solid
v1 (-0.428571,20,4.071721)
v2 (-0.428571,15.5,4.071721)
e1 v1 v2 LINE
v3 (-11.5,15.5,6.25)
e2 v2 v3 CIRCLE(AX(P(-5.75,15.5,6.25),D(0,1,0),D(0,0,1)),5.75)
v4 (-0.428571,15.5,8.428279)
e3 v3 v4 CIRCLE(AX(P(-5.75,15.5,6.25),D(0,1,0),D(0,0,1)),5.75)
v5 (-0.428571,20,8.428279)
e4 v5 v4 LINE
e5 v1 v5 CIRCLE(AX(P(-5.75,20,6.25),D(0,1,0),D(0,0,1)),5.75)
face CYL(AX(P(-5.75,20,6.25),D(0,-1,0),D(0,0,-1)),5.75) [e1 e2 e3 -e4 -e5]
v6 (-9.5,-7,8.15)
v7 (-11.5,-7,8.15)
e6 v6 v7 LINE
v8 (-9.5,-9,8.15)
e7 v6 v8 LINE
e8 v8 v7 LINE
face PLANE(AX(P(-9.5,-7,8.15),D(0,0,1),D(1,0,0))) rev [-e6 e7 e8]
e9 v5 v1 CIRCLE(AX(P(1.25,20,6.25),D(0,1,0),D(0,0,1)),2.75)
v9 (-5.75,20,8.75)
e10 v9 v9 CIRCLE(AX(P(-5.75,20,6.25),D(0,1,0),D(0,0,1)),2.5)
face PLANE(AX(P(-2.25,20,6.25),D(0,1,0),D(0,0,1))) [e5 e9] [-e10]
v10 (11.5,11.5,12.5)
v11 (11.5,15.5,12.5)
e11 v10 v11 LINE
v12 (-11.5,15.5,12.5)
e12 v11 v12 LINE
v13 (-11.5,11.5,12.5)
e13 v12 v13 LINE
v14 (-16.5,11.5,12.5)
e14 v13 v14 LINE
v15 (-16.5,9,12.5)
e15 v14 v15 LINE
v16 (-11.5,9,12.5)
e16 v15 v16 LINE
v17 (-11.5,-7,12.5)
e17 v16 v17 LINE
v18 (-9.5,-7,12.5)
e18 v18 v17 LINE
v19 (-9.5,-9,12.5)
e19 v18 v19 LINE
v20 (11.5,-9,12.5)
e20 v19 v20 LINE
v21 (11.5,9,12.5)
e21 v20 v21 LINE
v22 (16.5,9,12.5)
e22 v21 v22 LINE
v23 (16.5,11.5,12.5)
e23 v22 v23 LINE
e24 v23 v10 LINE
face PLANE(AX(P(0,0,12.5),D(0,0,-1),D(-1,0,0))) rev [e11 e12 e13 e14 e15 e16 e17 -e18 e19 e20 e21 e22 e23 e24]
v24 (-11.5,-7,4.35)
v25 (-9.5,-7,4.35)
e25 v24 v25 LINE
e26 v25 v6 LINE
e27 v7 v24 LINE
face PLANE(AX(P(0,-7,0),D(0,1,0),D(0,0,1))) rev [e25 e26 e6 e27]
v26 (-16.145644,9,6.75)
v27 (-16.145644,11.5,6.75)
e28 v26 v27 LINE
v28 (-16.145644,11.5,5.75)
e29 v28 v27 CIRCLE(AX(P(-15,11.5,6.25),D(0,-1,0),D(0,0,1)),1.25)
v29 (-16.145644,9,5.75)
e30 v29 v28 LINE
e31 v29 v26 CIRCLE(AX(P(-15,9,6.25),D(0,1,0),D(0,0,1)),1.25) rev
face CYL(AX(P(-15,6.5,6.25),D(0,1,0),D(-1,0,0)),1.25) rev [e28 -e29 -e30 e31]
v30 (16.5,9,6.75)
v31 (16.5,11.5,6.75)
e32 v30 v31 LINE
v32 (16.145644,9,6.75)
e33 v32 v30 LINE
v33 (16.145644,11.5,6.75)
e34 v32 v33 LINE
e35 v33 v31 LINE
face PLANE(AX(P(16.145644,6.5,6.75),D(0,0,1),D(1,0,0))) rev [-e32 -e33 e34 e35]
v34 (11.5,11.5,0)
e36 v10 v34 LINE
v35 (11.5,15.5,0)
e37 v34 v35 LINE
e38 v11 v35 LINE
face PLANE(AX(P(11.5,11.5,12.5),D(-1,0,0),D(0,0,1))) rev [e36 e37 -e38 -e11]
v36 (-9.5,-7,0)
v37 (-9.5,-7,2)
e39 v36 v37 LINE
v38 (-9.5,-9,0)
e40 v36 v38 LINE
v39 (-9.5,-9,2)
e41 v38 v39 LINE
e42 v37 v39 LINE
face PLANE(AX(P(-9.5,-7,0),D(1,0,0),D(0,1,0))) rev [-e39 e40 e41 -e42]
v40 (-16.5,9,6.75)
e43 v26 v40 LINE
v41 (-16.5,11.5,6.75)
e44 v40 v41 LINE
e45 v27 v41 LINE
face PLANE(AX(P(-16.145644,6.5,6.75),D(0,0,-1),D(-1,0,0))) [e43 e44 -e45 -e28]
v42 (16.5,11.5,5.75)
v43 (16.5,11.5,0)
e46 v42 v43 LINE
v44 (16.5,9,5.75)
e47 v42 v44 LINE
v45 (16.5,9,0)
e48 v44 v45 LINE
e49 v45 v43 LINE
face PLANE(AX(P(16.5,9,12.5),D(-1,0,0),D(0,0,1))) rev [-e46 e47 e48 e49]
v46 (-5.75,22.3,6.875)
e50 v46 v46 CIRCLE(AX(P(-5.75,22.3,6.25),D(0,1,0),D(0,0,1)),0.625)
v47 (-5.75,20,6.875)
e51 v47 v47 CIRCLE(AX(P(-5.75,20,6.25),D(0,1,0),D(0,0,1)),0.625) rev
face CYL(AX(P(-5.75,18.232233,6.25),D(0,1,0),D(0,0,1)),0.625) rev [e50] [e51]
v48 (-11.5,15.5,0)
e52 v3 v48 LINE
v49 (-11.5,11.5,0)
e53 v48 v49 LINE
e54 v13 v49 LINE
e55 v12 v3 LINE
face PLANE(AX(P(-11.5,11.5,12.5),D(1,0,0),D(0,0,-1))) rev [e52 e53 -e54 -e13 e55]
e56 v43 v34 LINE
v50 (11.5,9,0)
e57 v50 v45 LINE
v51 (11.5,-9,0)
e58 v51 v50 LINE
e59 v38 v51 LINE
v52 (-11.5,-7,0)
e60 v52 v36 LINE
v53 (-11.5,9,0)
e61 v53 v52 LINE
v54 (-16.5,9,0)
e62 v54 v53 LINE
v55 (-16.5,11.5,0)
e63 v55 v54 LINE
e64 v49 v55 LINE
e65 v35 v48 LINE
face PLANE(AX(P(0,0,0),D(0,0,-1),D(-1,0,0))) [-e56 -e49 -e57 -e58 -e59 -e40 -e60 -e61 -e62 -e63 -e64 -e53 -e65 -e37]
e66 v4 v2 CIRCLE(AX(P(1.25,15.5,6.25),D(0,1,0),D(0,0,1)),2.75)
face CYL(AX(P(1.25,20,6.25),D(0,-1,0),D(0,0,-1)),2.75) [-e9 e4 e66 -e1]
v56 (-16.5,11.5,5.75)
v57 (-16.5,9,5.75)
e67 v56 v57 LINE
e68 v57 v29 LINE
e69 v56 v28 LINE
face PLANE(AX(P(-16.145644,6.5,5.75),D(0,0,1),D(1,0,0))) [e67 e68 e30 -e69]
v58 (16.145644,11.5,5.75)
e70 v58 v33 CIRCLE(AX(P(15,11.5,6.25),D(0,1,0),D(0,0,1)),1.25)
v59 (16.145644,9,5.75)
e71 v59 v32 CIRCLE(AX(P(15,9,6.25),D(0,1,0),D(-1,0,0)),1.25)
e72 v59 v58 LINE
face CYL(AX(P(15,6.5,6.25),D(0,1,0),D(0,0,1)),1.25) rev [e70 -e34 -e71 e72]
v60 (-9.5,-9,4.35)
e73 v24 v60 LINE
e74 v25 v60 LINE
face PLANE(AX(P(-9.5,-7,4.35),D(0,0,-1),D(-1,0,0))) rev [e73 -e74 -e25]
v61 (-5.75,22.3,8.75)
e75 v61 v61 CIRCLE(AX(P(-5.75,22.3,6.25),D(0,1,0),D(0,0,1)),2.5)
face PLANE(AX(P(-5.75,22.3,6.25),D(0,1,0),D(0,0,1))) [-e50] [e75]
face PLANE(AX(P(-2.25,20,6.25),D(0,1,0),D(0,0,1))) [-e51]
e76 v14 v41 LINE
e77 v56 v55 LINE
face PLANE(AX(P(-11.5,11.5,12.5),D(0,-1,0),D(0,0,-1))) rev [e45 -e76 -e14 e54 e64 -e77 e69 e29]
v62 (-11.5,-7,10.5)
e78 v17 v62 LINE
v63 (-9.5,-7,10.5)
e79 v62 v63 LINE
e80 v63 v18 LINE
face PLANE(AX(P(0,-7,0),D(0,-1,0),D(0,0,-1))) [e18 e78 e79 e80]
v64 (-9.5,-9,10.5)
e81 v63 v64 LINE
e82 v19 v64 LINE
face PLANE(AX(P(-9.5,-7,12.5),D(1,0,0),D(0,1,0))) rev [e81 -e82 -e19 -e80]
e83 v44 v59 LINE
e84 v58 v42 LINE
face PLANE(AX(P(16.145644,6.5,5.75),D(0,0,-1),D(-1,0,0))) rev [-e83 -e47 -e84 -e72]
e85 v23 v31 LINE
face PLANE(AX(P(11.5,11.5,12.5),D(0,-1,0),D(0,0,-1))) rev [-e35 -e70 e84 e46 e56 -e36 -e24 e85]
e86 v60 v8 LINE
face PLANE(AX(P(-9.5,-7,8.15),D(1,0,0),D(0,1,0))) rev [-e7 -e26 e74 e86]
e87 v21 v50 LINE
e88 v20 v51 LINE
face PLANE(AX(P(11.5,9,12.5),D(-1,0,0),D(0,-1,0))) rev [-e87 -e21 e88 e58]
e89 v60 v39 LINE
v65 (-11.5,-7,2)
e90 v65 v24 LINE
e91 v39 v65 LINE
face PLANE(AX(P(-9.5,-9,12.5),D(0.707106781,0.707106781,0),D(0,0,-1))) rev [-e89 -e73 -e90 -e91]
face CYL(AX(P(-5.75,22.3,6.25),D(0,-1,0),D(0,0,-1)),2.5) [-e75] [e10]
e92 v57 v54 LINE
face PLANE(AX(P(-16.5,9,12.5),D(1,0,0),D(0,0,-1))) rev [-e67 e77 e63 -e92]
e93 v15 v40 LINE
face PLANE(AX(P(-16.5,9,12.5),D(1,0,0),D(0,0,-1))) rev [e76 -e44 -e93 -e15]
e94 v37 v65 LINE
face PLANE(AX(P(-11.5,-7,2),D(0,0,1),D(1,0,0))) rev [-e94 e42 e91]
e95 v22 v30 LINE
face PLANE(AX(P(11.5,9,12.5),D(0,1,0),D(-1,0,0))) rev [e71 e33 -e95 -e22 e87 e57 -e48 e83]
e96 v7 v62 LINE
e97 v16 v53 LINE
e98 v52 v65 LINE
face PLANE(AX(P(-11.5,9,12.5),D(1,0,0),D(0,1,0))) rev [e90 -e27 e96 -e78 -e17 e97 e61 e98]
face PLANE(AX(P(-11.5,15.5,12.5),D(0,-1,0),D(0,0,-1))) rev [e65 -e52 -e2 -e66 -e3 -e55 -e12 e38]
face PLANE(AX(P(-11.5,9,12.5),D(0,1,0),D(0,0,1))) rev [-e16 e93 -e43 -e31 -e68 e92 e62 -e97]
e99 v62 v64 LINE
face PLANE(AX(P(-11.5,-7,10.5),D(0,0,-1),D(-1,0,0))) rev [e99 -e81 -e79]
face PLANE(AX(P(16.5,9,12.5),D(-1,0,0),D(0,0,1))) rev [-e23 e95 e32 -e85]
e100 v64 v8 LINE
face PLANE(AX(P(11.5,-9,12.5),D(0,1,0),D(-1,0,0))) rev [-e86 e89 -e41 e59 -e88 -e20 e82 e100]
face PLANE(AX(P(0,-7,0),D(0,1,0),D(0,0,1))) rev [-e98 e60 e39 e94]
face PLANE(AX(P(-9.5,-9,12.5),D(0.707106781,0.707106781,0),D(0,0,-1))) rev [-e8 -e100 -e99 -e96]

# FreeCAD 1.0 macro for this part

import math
import FreeCAD as App
import Part
import Sketcher


def edges_at(feature, points):
    """Names of the edges that pass closest to the given points."""
    edges = feature.Shape.Edges
    near = lambda p: min(range(len(edges)), key=lambda i: edges[i].distToShape(Part.Vertex(*p))[0])
    return sorted({f"Edge{near(p) + 1}" for p in points})


def add_polygon(sketch, points):
    """Adds a closed chain of lines whose ends are joined by coincident constraints."""
    first, n = sketch.GeometryCount, len(points)
    for a, b in zip(points, points[1:] + points[:1]):
        sketch.addGeometry(Part.LineSegment(App.Vector(*a, 0), App.Vector(*b, 0)), False)
    for i in range(n):
        sketch.addConstraint(Sketcher.Constraint("Coincident", first + i, 2, first + (i + 1) % n, 1))

doc = App.newDocument("Part")
body = doc.addObject("PartDesign::Body", "Body")

sketch1 = body.newObject("Sketcher::SketchObject", "Sketch")
sketch1.AttachmentSupport = (doc.getObject("XY_Plane"), [""])
sketch1.MapMode = "FlatFace"
add_polygon(sketch1, [(11.5, -9), (11.5, 9), (16.5, 9), (16.5, 11.5), (11.5, 11.5), (11.5, 15.5), (-11.5, 15.5), (-11.5, 11.5), (-16.5, 11.5), (-16.5, 9), (-11.5, 9), (-11.5, -9)])
sketch1.addConstraint([
    Sketcher.Constraint("Vertical", 0),
    Sketcher.Constraint("Horizontal", 1),
    Sketcher.Constraint("Vertical", 2),
    Sketcher.Constraint("Horizontal", 3),
    Sketcher.Constraint("Vertical", 4),
    Sketcher.Constraint("Horizontal", 5),
    Sketcher.Constraint("Vertical", 6),
    Sketcher.Constraint("Horizontal", 7),
    Sketcher.Constraint("Vertical", 8),
    Sketcher.Constraint("Horizontal", 9),
    Sketcher.Constraint("Vertical", 10),
    Sketcher.Constraint("Horizontal", 11),
    Sketcher.Constraint("Symmetric", 0, 2, 10, 2, -1, 1),
    Sketcher.Constraint("Symmetric", 3, 2, 6, 2, -2),
    Sketcher.Constraint("Symmetric", 1, 2, 8, 2, -2),
    Sketcher.Constraint("Vertical", 0, 2, 3, 2),
    Sketcher.Constraint("DistanceX", 1, 1, 1, 2, 5.0),
    Sketcher.Constraint("DistanceX", 5, 2, 5, 1, 23.0),
    Sketcher.Constraint("DistanceY", 0, 1, 0, 2, 18.0),
    Sketcher.Constraint("DistanceY", 4, 1, 4, 2, 4.0),
    Sketcher.Constraint("DistanceY", 2, 1, 2, 2, 2.5),
])
pad1 = body.newObject("PartDesign::Pad", "Pad")
pad1.Profile = sketch1
pad1.Length = 12.5

sketch2 = body.newObject("Sketcher::SketchObject", "Sketch001")
sketch2.AttachmentSupport = (doc.getObject("XZ_Plane"), [""])
sketch2.MapMode = "FlatFace"
sketch2.AttachmentOffset = App.Placement(App.Vector(0, 0, -15.5), App.Rotation())
sketch2.addGeometry([
    Part.ArcOfCircle(Part.Circle(App.Vector(-5.8, 6.2, 0), App.Vector(0, 0, 1), 5.8), math.radians(22), math.radians(338)),
    Part.ArcOfCircle(Part.Circle(App.Vector(1.2, 6.2, 0), App.Vector(0, 0, 1), 2.8), math.radians(-128), math.radians(128)),
], False)
sketch2.addConstraint([
    Sketcher.Constraint("Coincident", 0, 1, 1, 2),
    Sketcher.Constraint("Coincident", 1, 1, 0, 2),
    Sketcher.Constraint("Horizontal", 0, 3, 1, 3),
    Sketcher.Constraint("Radius", 0, 5.75),
    Sketcher.Constraint("Radius", 1, 2.75),
    Sketcher.Constraint("DistanceX", 0, 3, 1, 3, 7.0),
    Sketcher.Constraint("DistanceX", 0, 3, -1, 1, 5.75),
    Sketcher.Constraint("DistanceY", -1, 1, 0, 3, 6.25),
])
pad2 = body.newObject("PartDesign::Pad", "Pad001")
pad2.Profile = sketch2
pad2.Length = 4.5
pad2.Reversed = True
doc.recompute()

chamfer = body.newObject("PartDesign::Chamfer", "Chamfer")
chamfer.Base = (pad2, edges_at(pad2, [(-11.5, -9, 6.25)]))
chamfer.Size = 2

sketch3 = body.newObject("Sketcher::SketchObject", "Sketch002")
sketch3.AttachmentSupport = (doc.getObject("XZ_Plane"), [""])
sketch3.MapMode = "FlatFace"
sketch3.AttachmentOffset = App.Placement(App.Vector(0, 0, 9), App.Rotation())
add_polygon(sketch3, [(-11.5, 2), (-11.5, 0), (-9.5, 0), (-9.5, 2)])
add_polygon(sketch3, [(-11.5, 12.5), (-11.5, 10.5), (-9.5, 10.5), (-9.5, 12.5)])
add_polygon(sketch3, [(-11.5, 8.2), (-11.5, 4.3), (-9.5, 4.3), (-9.5, 8.2)])
sketch3.addConstraint([
    Sketcher.Constraint("Vertical", 0),
    Sketcher.Constraint("Horizontal", 1),
    Sketcher.Constraint("Vertical", 2),
    Sketcher.Constraint("Horizontal", 3),
    Sketcher.Constraint("Vertical", 4),
    Sketcher.Constraint("Horizontal", 5),
    Sketcher.Constraint("Vertical", 6),
    Sketcher.Constraint("Horizontal", 7),
    Sketcher.Constraint("Vertical", 8),
    Sketcher.Constraint("Horizontal", 9),
    Sketcher.Constraint("Vertical", 10),
    Sketcher.Constraint("Horizontal", 11),
    Sketcher.Constraint("PointOnObject", 0, 2, -1),
    Sketcher.Constraint("Vertical", 3, 2, 4, 2),
    Sketcher.Constraint("Vertical", 2, 2, 5, 2),
    Sketcher.Constraint("Vertical", 7, 2, 8, 2),
    Sketcher.Constraint("Vertical", 6, 2, 9, 2),
    Sketcher.Constraint("Equal", 11, 0),
    Sketcher.Constraint("Equal", 2, 4),
    Sketcher.Constraint("DistanceX", 1, 1, 1, 2, 2.0),
    Sketcher.Constraint("DistanceY", 8, 2, 8, 1, 3.8),
    Sketcher.Constraint("DistanceX", 0, 2, -1, 1, 11.5),
    Sketcher.Constraint("DistanceY", -1, 1, 4, 2, 10.5),
    Sketcher.Constraint("DistanceY", -1, 1, 8, 2, 4.35),
])
pocket1 = body.newObject("PartDesign::Pocket", "Pocket")
pocket1.Profile = sketch3
pocket1.Length = 2

sketch4 = body.newObject("Sketcher::SketchObject", "Sketch003")
sketch4.AttachmentSupport = (doc.getObject("XZ_Plane"), [""])
sketch4.MapMode = "FlatFace"
sketch4.AttachmentOffset = App.Placement(App.Vector(0, 0, -11.5), App.Rotation())
sketch4.addGeometry([
    Part.LineSegment(App.Vector(16.1, 6.8, 0), App.Vector(17.2, 6.8, 0)),
    Part.LineSegment(App.Vector(17.2, 6.8, 0), App.Vector(17.2, 5.8, 0)),
    Part.LineSegment(App.Vector(17.2, 5.8, 0), App.Vector(16.1, 5.8, 0)),
    Part.ArcOfCircle(Part.Circle(App.Vector(15, 6.2, 0), App.Vector(0, 0, 1), 1.2), math.radians(24), math.radians(336)),
], False)
sketch4.addConstraint([
    Sketcher.Constraint("Coincident", 0, 2, 1, 1),
    Sketcher.Constraint("Coincident", 1, 2, 2, 1),
    Sketcher.Constraint("Coincident", 2, 2, 3, 2),
    Sketcher.Constraint("Coincident", 3, 1, 0, 1),
    Sketcher.Constraint("Horizontal", 0),
    Sketcher.Constraint("Vertical", 1),
    Sketcher.Constraint("Horizontal", 2),
    Sketcher.Constraint("Vertical", 2, 2, 3, 1),
    Sketcher.Constraint("DistanceY", 1, 2, 1, 1, 1.0),
    Sketcher.Constraint("Radius", 3, 1.25),
    Sketcher.Constraint("DistanceX", -1, 1, 3, 3, 15.0),
    Sketcher.Constraint("DistanceY", -1, 1, 3, 3, 6.25),
    Sketcher.Constraint("DistanceX", 0, 1, 0, 2, 1.010388),
])
pocket2 = body.newObject("PartDesign::Pocket", "Pocket001")
pocket2.Profile = sketch4
pocket2.Length = 5
pocket2.Reversed = True
doc.recompute()

mirrored = body.newObject("PartDesign::Mirrored", "Mirrored")
mirrored.Originals = [pocket2]
mirrored.MirrorPlane = (doc.getObject("YZ_Plane"), [""])
body.Tip = mirrored

sketch5 = body.newObject("Sketcher::SketchObject", "Sketch004")
sketch5.AttachmentSupport = (doc.getObject("XZ_Plane"), [""])
sketch5.MapMode = "FlatFace"
sketch5.AttachmentOffset = App.Placement(App.Vector(0, 0, -20), App.Rotation())
sketch5.addGeometry(Part.Circle(App.Vector(-5.8, 6.2, 0), App.Vector(0, 0, 1), 2.5), False)
sketch5.addConstraint([
    Sketcher.Constraint("Diameter", 0, 5.0),
    Sketcher.Constraint("DistanceX", 0, 3, -1, 1, 5.75),
    Sketcher.Constraint("DistanceY", -1, 1, 0, 3, 6.25),
])
pad3 = body.newObject("PartDesign::Pad", "Pad002")
pad3.Profile = sketch5
pad3.Length = 2.3
pad3.Reversed = True

sketch6 = body.newObject("Sketcher::SketchObject", "Sketch005")
sketch6.AttachmentSupport = (doc.getObject("XZ_Plane"), [""])
sketch6.MapMode = "FlatFace"
sketch6.AttachmentOffset = App.Placement(App.Vector(0, 0, -22.3), App.Rotation())
sketch6.addGeometry(Part.Circle(App.Vector(-5.8, 6.2, 0), App.Vector(0, 0, 1), 0.6), False)
sketch6.addConstraint([
    Sketcher.Constraint("Diameter", 0, 1.25),
    Sketcher.Constraint("DistanceX", 0, 3, -1, 1, 5.75),
    Sketcher.Constraint("DistanceY", -1, 1, 0, 3, 6.25),
])
pocket3 = body.newObject("PartDesign::Pocket", "Pocket002")
pocket3.Profile = sketch6
pocket3.Length = 2.3
pocket3.Reversed = True

doc.recompute()
